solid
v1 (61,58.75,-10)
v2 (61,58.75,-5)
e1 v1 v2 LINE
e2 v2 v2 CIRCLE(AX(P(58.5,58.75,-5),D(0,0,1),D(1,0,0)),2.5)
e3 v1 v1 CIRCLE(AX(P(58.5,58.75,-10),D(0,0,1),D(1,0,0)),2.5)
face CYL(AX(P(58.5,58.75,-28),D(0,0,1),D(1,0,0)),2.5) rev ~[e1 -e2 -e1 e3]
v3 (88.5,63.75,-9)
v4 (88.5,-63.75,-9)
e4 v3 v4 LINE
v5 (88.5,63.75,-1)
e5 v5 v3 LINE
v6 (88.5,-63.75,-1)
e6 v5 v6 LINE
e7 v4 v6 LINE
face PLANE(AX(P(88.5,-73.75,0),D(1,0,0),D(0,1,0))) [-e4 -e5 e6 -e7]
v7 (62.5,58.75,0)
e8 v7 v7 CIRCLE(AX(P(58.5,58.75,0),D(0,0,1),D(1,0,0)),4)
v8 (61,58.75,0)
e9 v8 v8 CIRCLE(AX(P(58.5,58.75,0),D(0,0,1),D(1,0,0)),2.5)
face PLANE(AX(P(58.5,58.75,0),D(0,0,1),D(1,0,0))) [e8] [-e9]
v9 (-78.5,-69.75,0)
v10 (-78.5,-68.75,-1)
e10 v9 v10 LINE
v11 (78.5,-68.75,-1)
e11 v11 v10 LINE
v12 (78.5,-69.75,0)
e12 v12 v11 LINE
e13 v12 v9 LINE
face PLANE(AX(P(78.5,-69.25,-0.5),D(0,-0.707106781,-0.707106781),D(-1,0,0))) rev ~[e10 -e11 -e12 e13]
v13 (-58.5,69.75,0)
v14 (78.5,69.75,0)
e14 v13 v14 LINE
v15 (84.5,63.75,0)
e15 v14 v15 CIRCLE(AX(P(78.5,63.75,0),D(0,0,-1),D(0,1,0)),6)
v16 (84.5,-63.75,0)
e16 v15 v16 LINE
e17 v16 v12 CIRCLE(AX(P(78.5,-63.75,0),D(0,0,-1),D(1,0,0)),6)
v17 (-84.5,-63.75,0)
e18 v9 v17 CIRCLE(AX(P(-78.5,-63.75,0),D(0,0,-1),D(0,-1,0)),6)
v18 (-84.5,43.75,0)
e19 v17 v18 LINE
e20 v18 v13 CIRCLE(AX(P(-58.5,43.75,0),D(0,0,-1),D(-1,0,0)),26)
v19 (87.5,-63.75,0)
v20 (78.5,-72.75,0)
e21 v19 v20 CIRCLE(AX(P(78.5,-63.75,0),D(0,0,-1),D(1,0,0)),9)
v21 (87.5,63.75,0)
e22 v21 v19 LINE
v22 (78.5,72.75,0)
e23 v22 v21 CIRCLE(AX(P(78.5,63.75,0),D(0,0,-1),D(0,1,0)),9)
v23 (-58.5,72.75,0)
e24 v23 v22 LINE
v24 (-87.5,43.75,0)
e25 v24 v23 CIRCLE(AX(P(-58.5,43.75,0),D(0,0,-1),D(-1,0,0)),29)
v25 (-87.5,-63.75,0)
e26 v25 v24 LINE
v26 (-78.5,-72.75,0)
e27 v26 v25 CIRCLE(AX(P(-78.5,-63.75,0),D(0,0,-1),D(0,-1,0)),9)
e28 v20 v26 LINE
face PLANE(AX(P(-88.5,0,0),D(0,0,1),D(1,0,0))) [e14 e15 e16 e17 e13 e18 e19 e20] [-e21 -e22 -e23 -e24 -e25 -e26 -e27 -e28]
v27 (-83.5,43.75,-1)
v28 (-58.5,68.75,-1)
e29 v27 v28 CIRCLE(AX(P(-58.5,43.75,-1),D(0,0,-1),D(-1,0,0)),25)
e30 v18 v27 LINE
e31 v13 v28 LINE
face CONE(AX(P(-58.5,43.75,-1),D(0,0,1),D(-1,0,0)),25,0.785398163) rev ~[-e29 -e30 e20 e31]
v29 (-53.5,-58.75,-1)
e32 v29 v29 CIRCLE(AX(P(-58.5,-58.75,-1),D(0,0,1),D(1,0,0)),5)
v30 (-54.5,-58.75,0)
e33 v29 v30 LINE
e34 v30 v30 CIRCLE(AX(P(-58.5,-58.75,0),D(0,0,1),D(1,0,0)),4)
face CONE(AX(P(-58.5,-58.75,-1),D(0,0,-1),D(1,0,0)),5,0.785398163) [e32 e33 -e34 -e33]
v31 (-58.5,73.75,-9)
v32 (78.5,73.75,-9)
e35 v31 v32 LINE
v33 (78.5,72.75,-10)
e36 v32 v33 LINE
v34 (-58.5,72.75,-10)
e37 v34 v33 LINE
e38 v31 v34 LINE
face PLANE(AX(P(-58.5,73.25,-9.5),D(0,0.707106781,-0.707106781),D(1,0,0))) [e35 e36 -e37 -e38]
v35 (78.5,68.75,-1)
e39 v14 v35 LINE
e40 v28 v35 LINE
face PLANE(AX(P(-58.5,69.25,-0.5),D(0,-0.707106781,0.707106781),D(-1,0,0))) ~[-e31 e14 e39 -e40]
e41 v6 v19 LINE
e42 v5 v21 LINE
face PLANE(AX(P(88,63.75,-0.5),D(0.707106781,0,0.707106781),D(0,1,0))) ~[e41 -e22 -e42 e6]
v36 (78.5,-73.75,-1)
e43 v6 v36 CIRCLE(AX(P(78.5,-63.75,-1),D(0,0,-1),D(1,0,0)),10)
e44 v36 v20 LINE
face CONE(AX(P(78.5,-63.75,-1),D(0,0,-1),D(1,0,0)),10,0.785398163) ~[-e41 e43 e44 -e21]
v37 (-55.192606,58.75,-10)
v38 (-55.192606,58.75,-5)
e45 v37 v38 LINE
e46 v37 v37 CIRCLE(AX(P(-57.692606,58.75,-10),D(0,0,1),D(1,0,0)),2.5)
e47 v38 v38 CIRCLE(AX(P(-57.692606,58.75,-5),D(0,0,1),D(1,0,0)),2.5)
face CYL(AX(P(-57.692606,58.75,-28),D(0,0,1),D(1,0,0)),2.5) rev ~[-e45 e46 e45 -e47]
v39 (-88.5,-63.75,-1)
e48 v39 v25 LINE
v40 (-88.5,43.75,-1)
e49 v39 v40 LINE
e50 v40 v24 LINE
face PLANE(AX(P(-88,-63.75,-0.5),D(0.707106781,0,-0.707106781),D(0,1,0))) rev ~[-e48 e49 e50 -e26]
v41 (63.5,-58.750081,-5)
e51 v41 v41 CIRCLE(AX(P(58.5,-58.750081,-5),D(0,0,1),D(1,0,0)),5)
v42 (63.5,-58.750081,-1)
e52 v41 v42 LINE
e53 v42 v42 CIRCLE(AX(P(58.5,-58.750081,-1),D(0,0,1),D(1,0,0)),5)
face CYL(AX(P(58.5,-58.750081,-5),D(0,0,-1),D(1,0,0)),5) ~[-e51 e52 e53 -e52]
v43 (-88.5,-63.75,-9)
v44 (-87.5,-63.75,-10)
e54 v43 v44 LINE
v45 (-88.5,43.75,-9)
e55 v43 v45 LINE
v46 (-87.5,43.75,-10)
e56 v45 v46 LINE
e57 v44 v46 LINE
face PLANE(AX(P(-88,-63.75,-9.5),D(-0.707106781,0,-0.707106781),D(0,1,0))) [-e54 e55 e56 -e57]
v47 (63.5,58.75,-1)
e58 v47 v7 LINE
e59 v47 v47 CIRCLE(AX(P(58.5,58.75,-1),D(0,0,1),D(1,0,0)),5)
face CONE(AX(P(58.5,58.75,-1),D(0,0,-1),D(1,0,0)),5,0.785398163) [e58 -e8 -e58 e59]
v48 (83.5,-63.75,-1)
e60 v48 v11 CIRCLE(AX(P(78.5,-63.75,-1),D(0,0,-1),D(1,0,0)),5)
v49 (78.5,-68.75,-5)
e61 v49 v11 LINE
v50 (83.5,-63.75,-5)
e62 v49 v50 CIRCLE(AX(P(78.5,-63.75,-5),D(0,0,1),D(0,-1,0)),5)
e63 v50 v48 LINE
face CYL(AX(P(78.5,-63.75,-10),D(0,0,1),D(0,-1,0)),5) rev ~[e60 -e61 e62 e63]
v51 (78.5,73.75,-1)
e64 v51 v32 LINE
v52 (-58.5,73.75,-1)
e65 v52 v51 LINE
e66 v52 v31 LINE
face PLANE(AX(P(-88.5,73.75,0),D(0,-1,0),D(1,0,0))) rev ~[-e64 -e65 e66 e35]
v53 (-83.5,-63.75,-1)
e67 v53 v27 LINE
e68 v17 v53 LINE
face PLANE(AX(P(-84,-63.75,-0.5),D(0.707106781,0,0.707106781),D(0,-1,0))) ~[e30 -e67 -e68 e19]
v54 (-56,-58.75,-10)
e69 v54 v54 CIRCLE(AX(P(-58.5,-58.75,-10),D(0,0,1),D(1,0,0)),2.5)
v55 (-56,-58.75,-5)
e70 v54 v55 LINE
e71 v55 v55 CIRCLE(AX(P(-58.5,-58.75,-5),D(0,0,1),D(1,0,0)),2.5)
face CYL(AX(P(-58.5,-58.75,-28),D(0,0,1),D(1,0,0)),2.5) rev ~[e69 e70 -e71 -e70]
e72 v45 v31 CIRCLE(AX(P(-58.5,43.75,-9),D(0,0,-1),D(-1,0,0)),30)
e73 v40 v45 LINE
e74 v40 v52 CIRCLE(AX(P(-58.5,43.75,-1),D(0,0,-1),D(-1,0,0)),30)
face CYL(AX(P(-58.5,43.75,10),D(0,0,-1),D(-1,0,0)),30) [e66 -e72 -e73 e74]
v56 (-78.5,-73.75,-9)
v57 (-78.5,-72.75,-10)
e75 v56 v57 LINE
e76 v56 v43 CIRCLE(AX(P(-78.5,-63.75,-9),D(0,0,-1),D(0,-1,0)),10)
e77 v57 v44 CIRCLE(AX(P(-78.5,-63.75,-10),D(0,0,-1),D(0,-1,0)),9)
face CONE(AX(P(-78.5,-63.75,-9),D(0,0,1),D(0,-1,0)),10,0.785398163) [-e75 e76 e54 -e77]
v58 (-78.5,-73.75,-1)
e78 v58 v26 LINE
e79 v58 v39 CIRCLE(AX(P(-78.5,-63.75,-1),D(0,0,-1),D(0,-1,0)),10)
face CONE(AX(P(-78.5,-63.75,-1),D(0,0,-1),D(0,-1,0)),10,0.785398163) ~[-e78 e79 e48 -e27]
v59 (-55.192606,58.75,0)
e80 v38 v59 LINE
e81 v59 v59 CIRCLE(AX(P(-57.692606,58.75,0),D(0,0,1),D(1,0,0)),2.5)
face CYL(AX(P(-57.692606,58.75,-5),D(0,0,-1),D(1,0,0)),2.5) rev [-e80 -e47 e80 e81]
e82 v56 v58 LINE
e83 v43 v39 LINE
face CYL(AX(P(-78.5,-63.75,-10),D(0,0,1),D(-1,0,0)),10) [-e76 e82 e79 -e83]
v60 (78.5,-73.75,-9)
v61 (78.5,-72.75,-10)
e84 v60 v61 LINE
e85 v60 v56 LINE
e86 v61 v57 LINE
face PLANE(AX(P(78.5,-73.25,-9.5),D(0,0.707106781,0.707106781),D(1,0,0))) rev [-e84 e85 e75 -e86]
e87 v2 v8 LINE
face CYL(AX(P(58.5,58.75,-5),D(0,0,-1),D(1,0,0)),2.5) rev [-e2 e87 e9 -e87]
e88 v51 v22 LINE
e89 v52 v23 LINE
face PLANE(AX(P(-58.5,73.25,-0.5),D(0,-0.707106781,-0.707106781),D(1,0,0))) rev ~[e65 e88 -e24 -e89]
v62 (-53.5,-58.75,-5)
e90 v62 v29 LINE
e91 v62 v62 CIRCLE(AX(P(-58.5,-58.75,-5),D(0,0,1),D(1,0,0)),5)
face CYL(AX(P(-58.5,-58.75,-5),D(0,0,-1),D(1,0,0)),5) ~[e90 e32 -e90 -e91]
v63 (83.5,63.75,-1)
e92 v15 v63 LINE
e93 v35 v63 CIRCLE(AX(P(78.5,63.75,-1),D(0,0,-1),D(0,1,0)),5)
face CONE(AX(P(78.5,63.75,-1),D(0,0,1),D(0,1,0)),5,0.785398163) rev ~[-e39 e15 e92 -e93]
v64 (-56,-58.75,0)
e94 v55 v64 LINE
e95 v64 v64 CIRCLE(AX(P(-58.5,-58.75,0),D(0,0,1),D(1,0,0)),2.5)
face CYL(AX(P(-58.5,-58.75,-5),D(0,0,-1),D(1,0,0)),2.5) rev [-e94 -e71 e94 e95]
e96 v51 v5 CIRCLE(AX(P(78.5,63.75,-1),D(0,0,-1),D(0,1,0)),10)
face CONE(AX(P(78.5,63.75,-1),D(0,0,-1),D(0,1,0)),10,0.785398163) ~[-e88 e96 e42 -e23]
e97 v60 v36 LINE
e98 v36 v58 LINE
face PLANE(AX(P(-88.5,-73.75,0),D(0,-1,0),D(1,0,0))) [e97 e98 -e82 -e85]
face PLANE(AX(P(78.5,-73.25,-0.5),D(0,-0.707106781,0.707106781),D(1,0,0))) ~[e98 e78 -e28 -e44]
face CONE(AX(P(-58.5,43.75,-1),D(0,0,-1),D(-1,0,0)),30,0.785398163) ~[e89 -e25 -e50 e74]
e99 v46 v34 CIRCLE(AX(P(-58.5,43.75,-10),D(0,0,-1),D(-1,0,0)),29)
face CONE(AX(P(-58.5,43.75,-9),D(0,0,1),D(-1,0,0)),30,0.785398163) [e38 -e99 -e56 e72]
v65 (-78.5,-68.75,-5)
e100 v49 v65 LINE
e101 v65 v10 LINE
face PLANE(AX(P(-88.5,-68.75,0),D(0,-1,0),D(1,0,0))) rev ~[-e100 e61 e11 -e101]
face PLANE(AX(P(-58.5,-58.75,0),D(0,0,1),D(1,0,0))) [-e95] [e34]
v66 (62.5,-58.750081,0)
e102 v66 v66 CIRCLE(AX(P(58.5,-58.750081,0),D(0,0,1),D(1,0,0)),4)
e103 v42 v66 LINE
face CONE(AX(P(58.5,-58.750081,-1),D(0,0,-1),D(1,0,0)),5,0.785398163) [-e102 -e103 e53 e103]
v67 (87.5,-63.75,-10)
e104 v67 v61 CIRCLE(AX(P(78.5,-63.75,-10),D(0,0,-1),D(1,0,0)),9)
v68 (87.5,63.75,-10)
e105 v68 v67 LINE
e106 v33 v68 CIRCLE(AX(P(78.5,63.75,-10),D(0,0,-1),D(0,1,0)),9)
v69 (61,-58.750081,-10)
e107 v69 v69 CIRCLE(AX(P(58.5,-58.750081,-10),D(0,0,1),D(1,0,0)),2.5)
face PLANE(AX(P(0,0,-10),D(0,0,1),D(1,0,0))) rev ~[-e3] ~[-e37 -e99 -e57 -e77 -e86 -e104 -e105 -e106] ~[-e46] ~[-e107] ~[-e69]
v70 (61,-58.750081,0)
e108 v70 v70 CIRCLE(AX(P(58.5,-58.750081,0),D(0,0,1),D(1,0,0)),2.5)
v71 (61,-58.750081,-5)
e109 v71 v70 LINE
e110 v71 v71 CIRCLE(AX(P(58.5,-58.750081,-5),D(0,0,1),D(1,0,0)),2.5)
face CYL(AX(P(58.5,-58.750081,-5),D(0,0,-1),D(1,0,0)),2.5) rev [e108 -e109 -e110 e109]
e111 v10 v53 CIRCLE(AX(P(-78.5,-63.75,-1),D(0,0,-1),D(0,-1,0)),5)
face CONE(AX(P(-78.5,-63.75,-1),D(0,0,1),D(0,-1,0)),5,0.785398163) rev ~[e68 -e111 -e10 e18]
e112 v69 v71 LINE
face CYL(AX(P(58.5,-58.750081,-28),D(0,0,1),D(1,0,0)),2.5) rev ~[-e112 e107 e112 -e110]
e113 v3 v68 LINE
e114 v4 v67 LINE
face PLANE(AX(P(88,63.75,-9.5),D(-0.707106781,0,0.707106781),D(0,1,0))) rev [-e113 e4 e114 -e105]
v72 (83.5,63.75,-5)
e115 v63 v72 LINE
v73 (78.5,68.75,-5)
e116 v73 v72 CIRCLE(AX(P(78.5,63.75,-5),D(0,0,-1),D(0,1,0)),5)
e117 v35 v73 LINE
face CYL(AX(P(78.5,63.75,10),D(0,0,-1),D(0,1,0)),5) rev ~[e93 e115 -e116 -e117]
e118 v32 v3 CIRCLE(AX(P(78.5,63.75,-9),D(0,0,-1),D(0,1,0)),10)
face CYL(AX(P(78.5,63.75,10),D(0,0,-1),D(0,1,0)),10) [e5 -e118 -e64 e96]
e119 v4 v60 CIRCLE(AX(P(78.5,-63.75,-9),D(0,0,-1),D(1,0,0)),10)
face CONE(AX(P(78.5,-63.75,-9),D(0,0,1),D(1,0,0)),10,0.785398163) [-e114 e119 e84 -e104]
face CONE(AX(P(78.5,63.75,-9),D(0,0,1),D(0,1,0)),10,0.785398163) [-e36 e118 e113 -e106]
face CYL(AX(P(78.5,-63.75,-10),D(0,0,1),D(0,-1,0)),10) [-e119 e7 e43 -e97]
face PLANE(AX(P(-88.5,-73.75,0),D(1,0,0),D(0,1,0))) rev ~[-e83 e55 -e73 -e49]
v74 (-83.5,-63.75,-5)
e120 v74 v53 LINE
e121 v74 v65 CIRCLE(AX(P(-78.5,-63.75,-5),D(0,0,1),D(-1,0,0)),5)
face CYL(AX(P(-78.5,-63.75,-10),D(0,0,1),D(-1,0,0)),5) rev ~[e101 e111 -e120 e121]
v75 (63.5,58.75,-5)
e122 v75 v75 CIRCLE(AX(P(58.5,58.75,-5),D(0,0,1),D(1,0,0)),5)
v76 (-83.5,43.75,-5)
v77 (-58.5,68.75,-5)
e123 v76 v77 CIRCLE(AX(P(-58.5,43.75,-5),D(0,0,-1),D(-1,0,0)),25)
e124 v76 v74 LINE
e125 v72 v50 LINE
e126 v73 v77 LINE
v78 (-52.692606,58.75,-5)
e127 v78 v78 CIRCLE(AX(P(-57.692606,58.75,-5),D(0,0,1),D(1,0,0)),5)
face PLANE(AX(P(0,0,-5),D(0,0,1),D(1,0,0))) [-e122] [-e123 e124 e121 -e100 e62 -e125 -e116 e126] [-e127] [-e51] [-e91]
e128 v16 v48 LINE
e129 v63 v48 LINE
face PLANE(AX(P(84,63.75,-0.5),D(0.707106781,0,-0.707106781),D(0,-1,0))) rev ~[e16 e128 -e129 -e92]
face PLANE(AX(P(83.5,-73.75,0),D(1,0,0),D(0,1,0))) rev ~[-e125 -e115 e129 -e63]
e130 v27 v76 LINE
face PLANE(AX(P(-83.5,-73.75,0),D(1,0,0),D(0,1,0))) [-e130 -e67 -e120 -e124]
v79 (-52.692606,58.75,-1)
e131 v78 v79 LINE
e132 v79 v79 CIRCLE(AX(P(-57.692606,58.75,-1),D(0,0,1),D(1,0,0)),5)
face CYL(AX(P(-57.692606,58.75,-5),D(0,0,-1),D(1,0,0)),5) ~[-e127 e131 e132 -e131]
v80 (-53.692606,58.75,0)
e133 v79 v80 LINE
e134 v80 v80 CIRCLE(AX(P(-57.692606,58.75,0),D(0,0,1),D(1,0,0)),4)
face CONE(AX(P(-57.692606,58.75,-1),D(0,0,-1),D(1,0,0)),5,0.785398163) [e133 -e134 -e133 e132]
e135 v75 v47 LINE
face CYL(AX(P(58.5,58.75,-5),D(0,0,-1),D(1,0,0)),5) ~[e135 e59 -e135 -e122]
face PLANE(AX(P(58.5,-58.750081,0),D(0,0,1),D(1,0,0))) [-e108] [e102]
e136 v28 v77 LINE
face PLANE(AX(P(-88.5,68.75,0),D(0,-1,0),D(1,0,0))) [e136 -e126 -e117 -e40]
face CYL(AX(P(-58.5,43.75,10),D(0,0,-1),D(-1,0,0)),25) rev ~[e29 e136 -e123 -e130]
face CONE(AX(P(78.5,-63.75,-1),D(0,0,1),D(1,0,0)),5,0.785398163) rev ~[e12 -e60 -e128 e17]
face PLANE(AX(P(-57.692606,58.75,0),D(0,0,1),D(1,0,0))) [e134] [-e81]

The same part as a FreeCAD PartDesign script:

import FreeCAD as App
import Part
import Sketcher

V = App.Vector


def edges_at(feature, points):
    """Names of the edges that pass closest to the given points."""
    edges = feature.Shape.Edges
    near = lambda p: min(range(len(edges)), key=lambda i: edges[i].distToShape(Part.Vertex(*p))[0])
    return sorted({f"Edge{near(p) + 1}" for p in points})


def faces_at(feature, points):
    """Names of the faces that lie closest to the given points."""
    faces = feature.Shape.Faces
    near = lambda p: min(range(len(faces)), key=lambda i: faces[i].distToShape(Part.Vertex(*p))[0])
    return sorted({f"Face{near(p) + 1}" for p in points})


def add_polygon(sketch, points):
    """Adds a closed chain of lines whose ends are joined by coincident constraints."""
    first, n = sketch.GeometryCount, len(points)
    for a, b in zip(points, points[1:] + points[:1]):
        sketch.addGeometry(Part.LineSegment(App.Vector(*a, 0), App.Vector(*b, 0)), False)
    for i in range(n):
        sketch.addConstraint(Sketcher.Constraint("Coincident", first + i, 2, first + (i + 1) % n, 1))

doc = App.newDocument("Part")
params = doc.addObject("Spreadsheet::Sheet", "Params")
for row, (alias, value) in enumerate([
    ("sketch1_width", "177 mm"),
    ("sketch1_height", "147.5 mm"),
    ("pad1_length", "20 mm"),
    ("fillet_radius", "30 mm"),
    ("fillet2_radius", "10 mm"),
    ("sketch2_width", "177 mm"),
    ("sketch2_height", "10 mm"),
    ("thickness_wall", "5 mm"),
    ("chamfer_size", "1 mm"),
    ("sketch3_diameter", "5 mm"),
    ("hole_diameter", "5 mm"),
    ("hole_depth", "18 mm"),
    ("sketch4_diameter", "10 mm"),
    ("sketch4_diameter2", "5 mm"),
    ("pad2_length", "5 mm"),
    ("chamfer2_size", "1 mm"),
], start=1):
    params.set(f"A{row}", alias)
    params.set(f"B{row}", "=" + value)
    params.setAlias(f"B{row}", alias)

body = doc.addObject("PartDesign::Body", "Body")

# Sketch on XY plane
sketch1 = body.newObject("Sketcher::SketchObject", "Sketch")
sketch1.AttachmentSupport = (doc.getObject("XY_Plane"), [""])
sketch1.MapMode = "FlatFace"
add_polygon(sketch1, [(-88, 74), (-88, -74), (88, -74), (88, 74)])  # lines 0-3
sketch1.addConstraint([
    Sketcher.Constraint("Vertical", 0),
    Sketcher.Constraint("Horizontal", 1),
    Sketcher.Constraint("Vertical", 2),
    Sketcher.Constraint("Horizontal", 3),
    Sketcher.Constraint("Symmetric", 0, 2, 2, 2, -1, 1),
    Sketcher.Constraint("DistanceX", 1, 1, 1, 2, 177.0),
    Sketcher.Constraint("DistanceY", 0, 2, 0, 1, 147.5),
])
sketch1.setExpression("Constraints[9]", "Params.sketch1_width")
sketch1.setExpression("Constraints[10]", "Params.sketch1_height")
pad1 = body.newObject("PartDesign::Pad", "Pad")
pad1.Profile = sketch1
pad1.setExpression("Length", "Params.pad1_length")
pad1.Midplane = True
doc.recompute()

fillet = body.newObject("PartDesign::Fillet", "Fillet")
fillet.Base = (pad1, edges_at(pad1, [(-88.5, 73.75, 0)]))
fillet.setExpression("Radius", "Params.fillet_radius")
doc.recompute()

fillet2 = body.newObject("PartDesign::Fillet", "Fillet001")
fillet2.Base = (fillet, edges_at(fillet, [(88.5, -73.75, 0), (-88.5, -73.75, 0), (88.5, 73.75, 0)]))
fillet2.setExpression("Radius", "Params.fillet2_radius")

# Sketch on XZ plane
sketch2 = body.newObject("Sketcher::SketchObject", "Sketch001")
sketch2.AttachmentSupport = (doc.getObject("XZ_Plane"), [""])
sketch2.MapMode = "FlatFace"
add_polygon(sketch2, [(-88, 0), (-88, 10), (88, 10), (88, 0)])  # lines 0-3
sketch2.addConstraint([
    Sketcher.Constraint("Vertical", 0),
    Sketcher.Constraint("Horizontal", 1),
    Sketcher.Constraint("Vertical", 2),
    Sketcher.Constraint("Horizontal", 3),
    Sketcher.Constraint("Symmetric", 2, 2, 3, 2, -1, 1),
    Sketcher.Constraint("DistanceX", 1, 1, 1, 2, 177.0),
    Sketcher.Constraint("DistanceY", 0, 1, 0, 2, 10.0),
])
sketch2.setExpression("Constraints[9]", "Params.sketch2_width")
sketch2.setExpression("Constraints[10]", "Params.sketch2_height")
pocket1 = body.newObject("PartDesign::Pocket", "Pocket")
pocket1.Profile = sketch2
pocket1.Type = "ThroughAll"
pocket1.Midplane = True
doc.recompute()

thickness = body.newObject("PartDesign::Thickness", "Thickness")
thickness.Base = (pocket1, faces_at(pocket1, [(0, 0, 0)]))
thickness.setExpression("Value", "Params.thickness_wall")
thickness.Reversed = True
thickness.Join = "Intersection"
doc.recompute()

chamfer = body.newObject("PartDesign::Chamfer", "Chamfer")
chamfer.Base = (thickness, edges_at(thickness, [
    (-88.5, -10, -10),
    (-79.713, 64.963, -10),
    (0, -73.75, -10),
    (10, 73.75, -10),
    (88.5, 0, -10),
    (85.571, 70.821, -10),
    (85.571, -70.821, -10),
    (-85.571, -70.821, -10),
    (85.571, 70.821, 0),
    (-79.713, 64.963, 0),
    (-85.571, -70.821, 0),
    (85.571, -70.821, 0),
    (88.5, 0, 0),
    (10, 73.75, 0),
    (0, -73.75, 0),
    (-88.5, -10, 0),
    (-83.5, -10, 0),
    (0, -68.75, 0),
    (-76.178, 61.428, 0),
    (-82.036, -67.286, 0),
    (82.036, -67.286, 0),
    (83.5, 0, 0),
    (82.036, 67.286, 0),
    (10, 68.75, 0),
]))
chamfer.setExpression("Size", "Params.chamfer_size")

# Sketch on XY plane
sketch3 = body.newObject("Sketcher::SketchObject", "Sketch002")
sketch3.AttachmentSupport = (doc.getObject("XY_Plane"), [""])
sketch3.MapMode = "FlatFace"
sketch3.AttachmentOffset = App.Placement(V(0, 0, -10), App.Rotation())
sketch3.addGeometry([
    Part.Circle(V(58.5, 58.8, 0), V(0, 0, 1), 2.5),
    Part.Circle(V(-57.7, 58.8, 0), V(0, 0, 1), 2.5),
    Part.Circle(V(-58.5, -58.8, 0), V(0, 0, 1), 2.5),
    Part.Circle(V(58.5, -58.8, 0), V(0, 0, 1), 2.5),
], False)
sketch3.addConstraint([
    Sketcher.Constraint("Equal", 0, 1),
    Sketcher.Constraint("Equal", 1, 2),
    Sketcher.Constraint("Equal", 2, 3),
    Sketcher.Constraint("Symmetric", 0, 3, 2, 3, -1, 1),
    Sketcher.Constraint("Horizontal", 0, 3, 1, 3),
    Sketcher.Constraint("Vertical", 0, 3, 3, 3),
    Sketcher.Constraint("Diameter", 0, 5.0),
    Sketcher.Constraint("DistanceX", 2, 3, 0, 3, 117.0),
    Sketcher.Constraint("DistanceY", 2, 3, 1, 3, 117.5),
    Sketcher.Constraint("DistanceY", 3, 3, -1, 1, 58.750081),
    Sketcher.Constraint("DistanceX", 1, 3, -1, 1, 57.692606),
])
sketch3.setExpression("Constraints[6]", "Params.sketch3_diameter")
doc.recompute()
hole = body.newObject("PartDesign::Hole", "Hole")
hole.Profile = sketch3
hole.ThreadType = "None"
hole.setExpression("Diameter", "Params.hole_diameter")
hole.DepthType = "Dimension"
hole.setExpression("Depth", "Params.hole_depth")
hole.DrillPoint = "Angled"
hole.DrillPointAngle = 118
hole.Reversed = True

# Sketch on XY plane
sketch4 = body.newObject("Sketcher::SketchObject", "Sketch003")
sketch4.AttachmentSupport = (doc.getObject("XY_Plane"), [""])
sketch4.MapMode = "FlatFace"
sketch4.AttachmentOffset = App.Placement(V(0, 0, -5), App.Rotation())
sketch4.addGeometry([
    Part.Circle(V(-57.7, 58.8, 0), V(0, 0, 1), 5),  # 0
    Part.Circle(V(-57.7, 58.8, 0), V(0, 0, 1), 2.5),  # 1
    Part.Circle(V(58.5, 58.8, 0), V(0, 0, 1), 5),  # 2
    Part.Circle(V(58.5, 58.8, 0), V(0, 0, 1), 2.5),  # 3
    Part.Circle(V(58.5, -58.8, 0), V(0, 0, 1), 5),  # 4
    Part.Circle(V(58.5, -58.8, 0), V(0, 0, 1), 2.5),  # 5
    Part.Circle(V(-58.5, -58.8, 0), V(0, 0, 1), 5),  # 6
    Part.Circle(V(-58.5, -58.8, 0), V(0, 0, 1), 2.5),  # 7
], False)
sketch4.addConstraint([
    Sketcher.Constraint("Coincident", 1, 3, 0, 3),
    Sketcher.Constraint("Coincident", 3, 3, 2, 3),
    Sketcher.Constraint("Coincident", 5, 3, 4, 3),
    Sketcher.Constraint("Coincident", 7, 3, 6, 3),
    Sketcher.Constraint("Equal", 0, 2),
    Sketcher.Constraint("Equal", 1, 3),
    Sketcher.Constraint("Equal", 2, 4),
    Sketcher.Constraint("Equal", 3, 5),
    Sketcher.Constraint("Equal", 4, 6),
    Sketcher.Constraint("Equal", 5, 7),
    Sketcher.Constraint("Symmetric", 2, 3, 6, 3, -1, 1),
    Sketcher.Constraint("Horizontal", 1, 3, 2, 3),
    Sketcher.Constraint("Vertical", 3, 3, 4, 3),
    Sketcher.Constraint("Diameter", 0, 10.0),
    Sketcher.Constraint("Diameter", 1, 5.0),
    Sketcher.Constraint("DistanceX", 6, 3, 4, 3, 117.0),
    Sketcher.Constraint("DistanceY", 6, 3, 0, 3, 117.5),
    Sketcher.Constraint("DistanceY", 4, 3, -1, 1, 58.750081),
    Sketcher.Constraint("DistanceX", 0, 3, -1, 1, 57.692606),
])
sketch4.setExpression("Constraints[13]", "Params.sketch4_diameter")
sketch4.setExpression("Constraints[14]", "Params.sketch4_diameter2")
pad2 = body.newObject("PartDesign::Pad", "Pad001")
pad2.Profile = sketch4
pad2.setExpression("Length", "Params.pad2_length")
doc.recompute()

chamfer2 = body.newObject("PartDesign::Chamfer", "Chamfer001")
chamfer2.Base = (pad2, edges_at(pad2, [
    (-62.693, 58.75, 0),
    (53.5, 58.75, 0),
    (53.5, -58.75, 0),
    (-63.5, -58.75, 0),
]))
chamfer2.setExpression("Size", "Params.chamfer2_size")

doc.recompute()
